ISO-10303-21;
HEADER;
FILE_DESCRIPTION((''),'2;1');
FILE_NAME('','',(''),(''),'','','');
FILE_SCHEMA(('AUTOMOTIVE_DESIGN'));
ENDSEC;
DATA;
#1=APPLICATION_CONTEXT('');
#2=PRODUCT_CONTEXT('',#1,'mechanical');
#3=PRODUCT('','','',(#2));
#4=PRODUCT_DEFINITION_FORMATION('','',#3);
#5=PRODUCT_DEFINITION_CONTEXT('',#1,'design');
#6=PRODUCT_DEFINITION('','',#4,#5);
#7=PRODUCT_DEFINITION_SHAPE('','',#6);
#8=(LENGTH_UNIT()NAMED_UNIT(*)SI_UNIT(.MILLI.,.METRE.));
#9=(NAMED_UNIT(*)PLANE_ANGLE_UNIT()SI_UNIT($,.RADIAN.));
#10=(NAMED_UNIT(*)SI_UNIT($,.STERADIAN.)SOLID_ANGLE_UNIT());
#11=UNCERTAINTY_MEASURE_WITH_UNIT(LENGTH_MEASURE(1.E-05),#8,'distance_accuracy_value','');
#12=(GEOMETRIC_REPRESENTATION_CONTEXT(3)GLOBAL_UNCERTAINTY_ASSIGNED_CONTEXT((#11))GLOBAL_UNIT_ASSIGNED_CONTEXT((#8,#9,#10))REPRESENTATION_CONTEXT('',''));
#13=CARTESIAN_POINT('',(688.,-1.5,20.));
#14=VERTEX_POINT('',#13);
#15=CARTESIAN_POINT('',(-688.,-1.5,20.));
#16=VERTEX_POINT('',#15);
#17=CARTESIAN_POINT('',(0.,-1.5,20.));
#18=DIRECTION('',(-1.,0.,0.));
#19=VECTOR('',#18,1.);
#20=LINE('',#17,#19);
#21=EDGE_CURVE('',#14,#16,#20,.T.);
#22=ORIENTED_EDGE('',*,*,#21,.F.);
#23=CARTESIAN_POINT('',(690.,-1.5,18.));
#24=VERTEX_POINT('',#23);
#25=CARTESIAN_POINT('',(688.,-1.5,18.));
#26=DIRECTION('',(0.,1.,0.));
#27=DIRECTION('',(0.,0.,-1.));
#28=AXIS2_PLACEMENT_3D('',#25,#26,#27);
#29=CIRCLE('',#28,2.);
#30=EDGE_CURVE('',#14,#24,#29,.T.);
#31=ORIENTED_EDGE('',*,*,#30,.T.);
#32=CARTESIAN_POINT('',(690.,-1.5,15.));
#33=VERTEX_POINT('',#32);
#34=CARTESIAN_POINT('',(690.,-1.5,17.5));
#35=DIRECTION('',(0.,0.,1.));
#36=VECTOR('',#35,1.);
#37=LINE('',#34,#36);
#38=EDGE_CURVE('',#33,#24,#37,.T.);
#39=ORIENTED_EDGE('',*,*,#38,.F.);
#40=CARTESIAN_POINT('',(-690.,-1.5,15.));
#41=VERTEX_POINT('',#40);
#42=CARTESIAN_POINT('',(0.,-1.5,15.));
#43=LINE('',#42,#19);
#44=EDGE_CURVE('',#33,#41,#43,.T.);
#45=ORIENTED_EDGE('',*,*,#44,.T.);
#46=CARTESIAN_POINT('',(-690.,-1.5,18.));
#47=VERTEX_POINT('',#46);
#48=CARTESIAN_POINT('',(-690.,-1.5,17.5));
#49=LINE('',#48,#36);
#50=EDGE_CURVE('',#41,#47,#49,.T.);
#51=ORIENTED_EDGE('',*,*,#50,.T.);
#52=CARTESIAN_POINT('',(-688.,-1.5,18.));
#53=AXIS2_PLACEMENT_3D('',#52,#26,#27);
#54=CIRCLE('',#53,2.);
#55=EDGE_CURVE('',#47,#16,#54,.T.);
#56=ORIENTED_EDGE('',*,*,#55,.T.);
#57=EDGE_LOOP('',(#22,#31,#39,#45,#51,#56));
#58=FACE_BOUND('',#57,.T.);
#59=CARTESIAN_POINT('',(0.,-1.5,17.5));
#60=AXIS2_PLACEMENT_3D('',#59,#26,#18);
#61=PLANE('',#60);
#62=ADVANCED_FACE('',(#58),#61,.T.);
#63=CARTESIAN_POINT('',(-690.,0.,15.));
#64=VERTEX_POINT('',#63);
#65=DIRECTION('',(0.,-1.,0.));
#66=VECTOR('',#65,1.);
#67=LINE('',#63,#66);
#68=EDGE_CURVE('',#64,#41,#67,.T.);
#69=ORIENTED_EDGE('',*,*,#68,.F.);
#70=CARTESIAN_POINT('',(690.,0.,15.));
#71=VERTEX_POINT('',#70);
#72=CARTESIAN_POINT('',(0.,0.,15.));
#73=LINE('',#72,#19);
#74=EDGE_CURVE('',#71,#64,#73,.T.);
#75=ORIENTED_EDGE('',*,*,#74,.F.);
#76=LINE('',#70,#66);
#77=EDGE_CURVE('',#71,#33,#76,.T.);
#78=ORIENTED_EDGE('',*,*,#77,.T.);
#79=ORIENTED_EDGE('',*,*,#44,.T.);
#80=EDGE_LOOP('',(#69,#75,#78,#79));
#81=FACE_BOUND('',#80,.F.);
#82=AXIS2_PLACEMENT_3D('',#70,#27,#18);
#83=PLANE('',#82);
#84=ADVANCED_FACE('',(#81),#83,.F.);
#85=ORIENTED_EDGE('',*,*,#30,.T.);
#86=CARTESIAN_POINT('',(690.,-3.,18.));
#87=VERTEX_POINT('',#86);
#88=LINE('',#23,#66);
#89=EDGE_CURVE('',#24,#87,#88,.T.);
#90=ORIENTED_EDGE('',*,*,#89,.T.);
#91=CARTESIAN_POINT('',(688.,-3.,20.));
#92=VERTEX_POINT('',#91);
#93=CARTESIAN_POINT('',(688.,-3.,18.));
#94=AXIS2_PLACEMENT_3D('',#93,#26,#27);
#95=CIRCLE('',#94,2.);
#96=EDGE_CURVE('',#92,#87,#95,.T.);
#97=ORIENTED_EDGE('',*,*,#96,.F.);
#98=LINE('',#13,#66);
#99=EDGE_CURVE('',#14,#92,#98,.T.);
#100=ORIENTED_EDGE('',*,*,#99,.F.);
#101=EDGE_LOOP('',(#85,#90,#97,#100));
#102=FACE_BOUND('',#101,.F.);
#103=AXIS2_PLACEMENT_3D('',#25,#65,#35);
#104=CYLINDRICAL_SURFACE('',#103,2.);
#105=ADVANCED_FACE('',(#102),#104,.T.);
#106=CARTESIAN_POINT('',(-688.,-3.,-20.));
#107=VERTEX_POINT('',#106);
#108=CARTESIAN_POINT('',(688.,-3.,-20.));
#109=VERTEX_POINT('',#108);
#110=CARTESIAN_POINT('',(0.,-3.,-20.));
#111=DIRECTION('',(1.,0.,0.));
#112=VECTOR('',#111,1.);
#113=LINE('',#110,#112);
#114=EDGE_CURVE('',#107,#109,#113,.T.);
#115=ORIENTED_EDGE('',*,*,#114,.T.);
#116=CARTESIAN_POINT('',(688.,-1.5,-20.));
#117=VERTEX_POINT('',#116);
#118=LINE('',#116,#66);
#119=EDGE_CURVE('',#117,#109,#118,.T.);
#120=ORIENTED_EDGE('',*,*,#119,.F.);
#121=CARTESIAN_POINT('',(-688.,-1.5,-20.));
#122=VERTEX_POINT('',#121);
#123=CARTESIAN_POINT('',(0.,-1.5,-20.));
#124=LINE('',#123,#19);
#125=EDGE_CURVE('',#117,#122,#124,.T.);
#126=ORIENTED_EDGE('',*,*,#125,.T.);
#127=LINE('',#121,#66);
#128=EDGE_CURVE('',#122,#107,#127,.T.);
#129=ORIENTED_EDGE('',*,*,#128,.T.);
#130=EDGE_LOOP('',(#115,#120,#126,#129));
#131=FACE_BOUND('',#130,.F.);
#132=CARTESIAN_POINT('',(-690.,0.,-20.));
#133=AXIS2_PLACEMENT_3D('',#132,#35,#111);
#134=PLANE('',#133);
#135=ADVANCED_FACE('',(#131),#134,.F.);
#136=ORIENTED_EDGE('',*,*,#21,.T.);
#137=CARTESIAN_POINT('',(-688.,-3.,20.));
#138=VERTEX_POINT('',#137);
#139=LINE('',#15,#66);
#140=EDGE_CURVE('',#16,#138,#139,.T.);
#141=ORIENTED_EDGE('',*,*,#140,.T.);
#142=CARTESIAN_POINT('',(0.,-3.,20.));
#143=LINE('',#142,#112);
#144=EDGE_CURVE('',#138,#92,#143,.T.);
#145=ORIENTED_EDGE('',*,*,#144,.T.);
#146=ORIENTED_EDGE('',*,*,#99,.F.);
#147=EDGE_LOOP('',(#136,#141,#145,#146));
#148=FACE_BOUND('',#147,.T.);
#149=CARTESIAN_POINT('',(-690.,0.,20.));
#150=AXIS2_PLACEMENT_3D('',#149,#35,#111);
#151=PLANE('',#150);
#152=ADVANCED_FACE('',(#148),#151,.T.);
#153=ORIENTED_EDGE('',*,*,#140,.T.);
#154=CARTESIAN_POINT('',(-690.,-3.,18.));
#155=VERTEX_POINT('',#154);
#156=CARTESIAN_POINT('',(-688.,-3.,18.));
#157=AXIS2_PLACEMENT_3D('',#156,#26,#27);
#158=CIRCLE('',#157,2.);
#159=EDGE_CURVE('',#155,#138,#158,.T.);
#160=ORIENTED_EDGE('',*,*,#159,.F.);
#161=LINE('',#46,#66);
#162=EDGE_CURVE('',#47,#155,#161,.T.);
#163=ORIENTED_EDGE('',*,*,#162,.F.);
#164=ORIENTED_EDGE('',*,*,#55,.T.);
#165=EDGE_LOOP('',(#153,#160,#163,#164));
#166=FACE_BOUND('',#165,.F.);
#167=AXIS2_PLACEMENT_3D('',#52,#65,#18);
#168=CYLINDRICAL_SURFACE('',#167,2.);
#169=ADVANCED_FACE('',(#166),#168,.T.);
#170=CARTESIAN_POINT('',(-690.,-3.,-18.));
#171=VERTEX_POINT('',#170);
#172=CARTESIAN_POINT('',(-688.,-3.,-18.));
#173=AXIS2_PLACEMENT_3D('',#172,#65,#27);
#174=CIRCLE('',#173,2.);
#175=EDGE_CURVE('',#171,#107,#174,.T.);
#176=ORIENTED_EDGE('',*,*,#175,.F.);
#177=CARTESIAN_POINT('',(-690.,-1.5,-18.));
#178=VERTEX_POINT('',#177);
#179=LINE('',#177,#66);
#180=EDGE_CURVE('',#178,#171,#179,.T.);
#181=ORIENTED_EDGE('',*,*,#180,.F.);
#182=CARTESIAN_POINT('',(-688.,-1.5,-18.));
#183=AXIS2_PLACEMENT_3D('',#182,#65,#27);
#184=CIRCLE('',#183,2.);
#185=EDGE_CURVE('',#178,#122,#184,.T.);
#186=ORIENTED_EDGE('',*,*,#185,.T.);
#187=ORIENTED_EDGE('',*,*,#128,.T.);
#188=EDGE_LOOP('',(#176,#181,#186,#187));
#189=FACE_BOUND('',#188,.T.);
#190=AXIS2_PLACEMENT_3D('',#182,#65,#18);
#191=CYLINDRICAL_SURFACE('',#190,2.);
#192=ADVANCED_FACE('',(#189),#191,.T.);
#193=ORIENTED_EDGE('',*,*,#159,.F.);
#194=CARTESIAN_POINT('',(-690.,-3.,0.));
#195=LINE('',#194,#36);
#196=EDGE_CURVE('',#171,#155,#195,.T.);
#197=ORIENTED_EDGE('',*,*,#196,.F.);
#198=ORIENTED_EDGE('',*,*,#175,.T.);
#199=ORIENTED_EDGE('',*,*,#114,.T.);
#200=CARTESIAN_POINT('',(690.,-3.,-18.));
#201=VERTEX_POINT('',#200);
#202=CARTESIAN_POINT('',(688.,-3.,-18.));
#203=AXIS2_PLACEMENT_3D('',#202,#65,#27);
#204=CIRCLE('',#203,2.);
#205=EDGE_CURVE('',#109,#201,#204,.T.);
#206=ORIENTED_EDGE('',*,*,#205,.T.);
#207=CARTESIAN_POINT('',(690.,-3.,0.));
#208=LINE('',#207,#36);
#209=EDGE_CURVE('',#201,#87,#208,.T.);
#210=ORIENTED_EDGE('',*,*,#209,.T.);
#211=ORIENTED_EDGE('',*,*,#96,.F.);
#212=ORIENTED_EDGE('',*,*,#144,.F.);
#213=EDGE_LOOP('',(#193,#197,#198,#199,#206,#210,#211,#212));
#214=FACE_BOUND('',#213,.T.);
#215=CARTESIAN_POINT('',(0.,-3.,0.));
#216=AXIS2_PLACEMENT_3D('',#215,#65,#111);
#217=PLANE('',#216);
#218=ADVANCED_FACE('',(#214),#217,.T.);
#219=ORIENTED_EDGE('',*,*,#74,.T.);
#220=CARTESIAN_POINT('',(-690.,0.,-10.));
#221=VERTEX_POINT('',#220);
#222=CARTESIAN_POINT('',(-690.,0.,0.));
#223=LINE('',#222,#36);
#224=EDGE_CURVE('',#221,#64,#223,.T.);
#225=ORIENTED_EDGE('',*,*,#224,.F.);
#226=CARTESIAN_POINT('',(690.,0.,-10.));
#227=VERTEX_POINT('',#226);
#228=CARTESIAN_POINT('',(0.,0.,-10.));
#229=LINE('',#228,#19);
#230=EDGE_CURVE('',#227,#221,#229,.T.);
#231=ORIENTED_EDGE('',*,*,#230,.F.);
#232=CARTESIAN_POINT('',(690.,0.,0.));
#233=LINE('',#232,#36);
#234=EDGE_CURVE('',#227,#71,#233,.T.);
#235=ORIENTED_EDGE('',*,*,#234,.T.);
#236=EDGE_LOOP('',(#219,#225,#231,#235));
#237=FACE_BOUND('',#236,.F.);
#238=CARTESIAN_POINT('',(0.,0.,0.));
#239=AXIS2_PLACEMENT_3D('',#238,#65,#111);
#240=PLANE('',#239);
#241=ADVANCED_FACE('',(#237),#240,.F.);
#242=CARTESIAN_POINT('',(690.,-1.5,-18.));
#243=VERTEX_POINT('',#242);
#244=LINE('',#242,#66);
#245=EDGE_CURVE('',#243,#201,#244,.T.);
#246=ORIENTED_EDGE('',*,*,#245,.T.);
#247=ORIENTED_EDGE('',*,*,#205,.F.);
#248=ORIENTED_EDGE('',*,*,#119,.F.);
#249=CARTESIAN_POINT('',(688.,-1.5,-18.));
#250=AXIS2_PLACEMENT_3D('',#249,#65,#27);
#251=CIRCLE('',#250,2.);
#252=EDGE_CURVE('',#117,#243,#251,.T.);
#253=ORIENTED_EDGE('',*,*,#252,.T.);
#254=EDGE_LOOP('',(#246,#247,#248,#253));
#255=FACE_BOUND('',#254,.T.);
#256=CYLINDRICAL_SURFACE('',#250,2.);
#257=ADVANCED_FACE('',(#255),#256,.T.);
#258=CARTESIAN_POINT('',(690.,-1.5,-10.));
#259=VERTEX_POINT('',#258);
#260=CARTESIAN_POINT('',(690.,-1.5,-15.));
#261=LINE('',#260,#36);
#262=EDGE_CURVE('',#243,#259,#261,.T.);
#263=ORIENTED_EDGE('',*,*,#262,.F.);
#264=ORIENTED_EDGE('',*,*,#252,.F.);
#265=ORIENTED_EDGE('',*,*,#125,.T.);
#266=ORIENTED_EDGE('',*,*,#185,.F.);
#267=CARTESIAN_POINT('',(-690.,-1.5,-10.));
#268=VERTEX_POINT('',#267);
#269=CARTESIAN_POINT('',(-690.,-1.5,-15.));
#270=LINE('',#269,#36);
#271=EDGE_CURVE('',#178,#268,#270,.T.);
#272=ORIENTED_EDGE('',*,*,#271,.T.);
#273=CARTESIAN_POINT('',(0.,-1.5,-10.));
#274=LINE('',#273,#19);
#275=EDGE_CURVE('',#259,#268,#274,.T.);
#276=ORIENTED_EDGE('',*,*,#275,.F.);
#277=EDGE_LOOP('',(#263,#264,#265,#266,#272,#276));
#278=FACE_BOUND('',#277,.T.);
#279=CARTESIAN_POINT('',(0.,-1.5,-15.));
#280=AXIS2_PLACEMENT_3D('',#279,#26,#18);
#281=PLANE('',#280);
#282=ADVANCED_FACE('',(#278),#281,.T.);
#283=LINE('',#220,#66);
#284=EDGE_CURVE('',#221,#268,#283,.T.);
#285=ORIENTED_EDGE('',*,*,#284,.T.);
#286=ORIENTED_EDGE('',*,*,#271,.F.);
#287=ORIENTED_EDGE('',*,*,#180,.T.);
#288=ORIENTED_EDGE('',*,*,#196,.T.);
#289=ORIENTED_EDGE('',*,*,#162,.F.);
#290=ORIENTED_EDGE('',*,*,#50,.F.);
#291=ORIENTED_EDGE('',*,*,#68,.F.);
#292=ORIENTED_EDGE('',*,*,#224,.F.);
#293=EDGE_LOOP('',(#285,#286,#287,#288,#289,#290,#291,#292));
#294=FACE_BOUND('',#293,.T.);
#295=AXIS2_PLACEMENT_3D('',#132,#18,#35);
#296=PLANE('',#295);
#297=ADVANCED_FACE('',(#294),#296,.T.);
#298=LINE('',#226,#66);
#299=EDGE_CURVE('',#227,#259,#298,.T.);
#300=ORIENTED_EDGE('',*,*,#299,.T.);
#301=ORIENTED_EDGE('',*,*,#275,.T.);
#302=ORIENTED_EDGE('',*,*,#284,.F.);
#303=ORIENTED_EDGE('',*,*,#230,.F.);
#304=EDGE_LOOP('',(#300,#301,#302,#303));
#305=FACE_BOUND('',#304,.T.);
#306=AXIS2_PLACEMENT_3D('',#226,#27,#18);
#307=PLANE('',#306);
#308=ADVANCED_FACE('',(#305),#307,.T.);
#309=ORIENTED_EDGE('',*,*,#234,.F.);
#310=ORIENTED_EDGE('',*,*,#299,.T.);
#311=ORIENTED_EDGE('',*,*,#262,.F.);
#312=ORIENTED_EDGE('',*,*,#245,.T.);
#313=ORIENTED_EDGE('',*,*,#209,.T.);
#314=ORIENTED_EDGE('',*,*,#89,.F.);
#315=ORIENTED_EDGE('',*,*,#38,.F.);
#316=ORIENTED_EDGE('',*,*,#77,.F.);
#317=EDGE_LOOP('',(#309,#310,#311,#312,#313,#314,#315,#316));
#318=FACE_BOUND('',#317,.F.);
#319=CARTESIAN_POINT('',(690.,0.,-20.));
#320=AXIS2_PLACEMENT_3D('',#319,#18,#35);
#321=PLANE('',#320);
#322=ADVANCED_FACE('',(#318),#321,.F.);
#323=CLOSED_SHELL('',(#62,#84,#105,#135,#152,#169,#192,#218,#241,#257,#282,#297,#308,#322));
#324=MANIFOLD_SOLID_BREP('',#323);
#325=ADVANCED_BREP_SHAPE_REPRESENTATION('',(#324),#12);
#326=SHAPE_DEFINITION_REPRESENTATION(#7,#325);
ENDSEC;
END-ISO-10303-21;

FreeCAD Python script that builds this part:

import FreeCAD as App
import Part
import Sketcher

V = App.Vector
Q = App.Units.Quantity


def edges_at(feature, points):
    """Names of the edges that pass closest to the given points."""
    edges = feature.Shape.Edges
    near = lambda p: min(range(len(edges)), key=lambda i: edges[i].distToShape(Part.Vertex(*p))[0])
    return sorted({f"Edge{near(p) + 1}" for p in points})


def add_polygon(sketch, points):
    """Adds a closed chain of lines whose ends are joined by coincident constraints."""
    first, n = sketch.GeometryCount, len(points)
    for a, b in zip(points, points[1:] + points[:1]):
        sketch.addGeometry(Part.LineSegment(App.Vector(*a, 0), App.Vector(*b, 0)), False)
    for i in range(n):
        sketch.addConstraint(Sketcher.Constraint("Coincident", first + i, 2, first + (i + 1) % n, 1))

doc = App.newDocument("Part")
body = doc.addObject("PartDesign::Body", "Body")

sketch1 = body.newObject("Sketcher::SketchObject", "Sketch")
sketch1.AttachmentSupport = (doc.getObject("XZ_Plane"), [""])
sketch1.MapMode = "FlatFace"
add_polygon(sketch1, [(-690, 20), (-690, -20), (690, -20), (690, 20)])
sketch1.addConstraint([
    Sketcher.Constraint("Vertical", 0),
    Sketcher.Constraint("Horizontal", 1),
    Sketcher.Constraint("Vertical", 2),
    Sketcher.Constraint("Horizontal", 3),
    Sketcher.Constraint("Symmetric", 0, 2, 2, 2, -1, 1),
    Sketcher.Constraint("DistanceX", 1, 1, 1, 2, Q("1380 mm")),
    Sketcher.Constraint("DistanceY", 0, 2, 0, 1, Q("40 mm")),
])
pad1 = body.newObject("PartDesign::Pad", "Pad")
pad1.Profile = sketch1
pad1.Length = 3

sketch2 = body.newObject("Sketcher::SketchObject", "Sketch001")
sketch2.AttachmentSupport = (doc.getObject("XZ_Plane"), [""])
sketch2.MapMode = "FlatFace"
add_polygon(sketch2, [(690, 20), (690, 15), (-690, 15), (-690, 20)])
add_polygon(sketch2, [(690, -10), (690, -20), (-690, -20), (-690, -10)])
sketch2.addConstraint([
    Sketcher.Constraint("Vertical", 0),
    Sketcher.Constraint("Horizontal", 1),
    Sketcher.Constraint("Vertical", 2),
    Sketcher.Constraint("Horizontal", 3),
    Sketcher.Constraint("Vertical", 4),
    Sketcher.Constraint("Horizontal", 5),
    Sketcher.Constraint("Vertical", 6),
    Sketcher.Constraint("Horizontal", 7),
    Sketcher.Constraint("Symmetric", 2, 2, 4, 2, -1, 1),
    Sketcher.Constraint("Vertical", 3, 2, 4, 2),
    Sketcher.Constraint("Vertical", 2, 2, 5, 2),
    Sketcher.Constraint("DistanceX", 1, 2, 1, 1, Q("1380 mm")),
    Sketcher.Constraint("DistanceY", 0, 2, 0, 1, Q("5 mm")),
    Sketcher.Constraint("DistanceY", 4, 2, 4, 1, Q("10 mm")),
    Sketcher.Constraint("DistanceY", -1, 1, 0, 2, Q("15 mm")),
])
pocket1 = body.newObject("PartDesign::Pocket", "Pocket")
pocket1.Profile = sketch2
pocket1.Length = 1.5
pocket1.Reversed = True
doc.recompute()

fillet = body.newObject("PartDesign::Fillet", "Fillet")
fillet.Base = (pocket1, edges_at(pocket1, [
    (690, -2.25, 20),
    (690, -2.25, -20),
    (-690, -2.25, 20),
    (-690, -2.25, -20),
]))
fillet.Radius = 2

doc.recompute()
